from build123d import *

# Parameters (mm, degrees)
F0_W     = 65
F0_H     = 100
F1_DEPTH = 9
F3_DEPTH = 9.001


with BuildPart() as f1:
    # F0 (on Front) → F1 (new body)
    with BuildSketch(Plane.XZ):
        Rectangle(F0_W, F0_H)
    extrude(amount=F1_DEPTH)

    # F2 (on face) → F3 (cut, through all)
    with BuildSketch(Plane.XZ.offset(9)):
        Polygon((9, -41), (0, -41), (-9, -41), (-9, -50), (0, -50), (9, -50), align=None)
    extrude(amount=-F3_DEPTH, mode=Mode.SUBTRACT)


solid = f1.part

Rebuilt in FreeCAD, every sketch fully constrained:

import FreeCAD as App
import Part
import Sketcher


def add_polygon(sketch, points):
    """Adds a closed chain of lines whose ends are joined by coincident constraints."""
    first, n = sketch.GeometryCount, len(points)
    for a, b in zip(points, points[1:] + points[:1]):
        sketch.addGeometry(Part.LineSegment(App.Vector(*a, 0), App.Vector(*b, 0)), False)
    for i in range(n):
        sketch.addConstraint(Sketcher.Constraint("Coincident", first + i, 2, first + (i + 1) % n, 1))

doc = App.newDocument("Part")
body = doc.addObject("PartDesign::Body", "Body")

# Sketch on XZ plane
sketch1 = body.newObject("Sketcher::SketchObject", "Sketch")
sketch1.AttachmentSupport = (doc.getObject("XZ_Plane"), [""])
sketch1.MapMode = "FlatFace"
add_polygon(sketch1, [(-32.5, 50), (-32.5, -50), (32.5, -50), (32.5, 50)])  # lines 0-3
sketch1.addConstraint([
    Sketcher.Constraint("Vertical", 0),
    Sketcher.Constraint("Horizontal", 1),
    Sketcher.Constraint("Vertical", 2),
    Sketcher.Constraint("Horizontal", 3),
    Sketcher.Constraint("Symmetric", 0, 2, 2, 2, -1, 1),
    Sketcher.Constraint("DistanceX", 1, 1, 1, 2, 65.0),
    Sketcher.Constraint("DistanceY", 0, 2, 0, 1, 100.0),
])
pad1 = body.newObject("PartDesign::Pad", "Pad")
pad1.Profile = sketch1
pad1.Length = 9

# Sketch on XZ plane
sketch2 = body.newObject("Sketcher::SketchObject", "Sketch001")
sketch2.AttachmentSupport = (doc.getObject("XZ_Plane"), [""])
sketch2.MapMode = "FlatFace"
sketch2.AttachmentOffset = App.Placement(App.Vector(0, 0, 9), App.Rotation())
add_polygon(sketch2, [(9, -41), (-9, -41), (-9, -50), (9, -50)])  # lines 0-3
sketch2.addConstraint([
    Sketcher.Constraint("Horizontal", 0),
    Sketcher.Constraint("Vertical", 1),
    Sketcher.Constraint("Horizontal", 2),
    Sketcher.Constraint("Vertical", 3),
    Sketcher.Constraint("DistanceX", 0, 2, 0, 1, 18.0),
    Sketcher.Constraint("DistanceY", 1, 2, 1, 1, 9.0),
    Sketcher.Constraint("DistanceX", 0, 2, -1, 1, 9.0),
    Sketcher.Constraint("DistanceY", 0, 2, -1, 1, 41.0),
])
pocket1 = body.newObject("PartDesign::Pocket", "Pocket")
pocket1.Profile = sketch2
pocket1.Type = "ThroughAll"

doc.recompute()
